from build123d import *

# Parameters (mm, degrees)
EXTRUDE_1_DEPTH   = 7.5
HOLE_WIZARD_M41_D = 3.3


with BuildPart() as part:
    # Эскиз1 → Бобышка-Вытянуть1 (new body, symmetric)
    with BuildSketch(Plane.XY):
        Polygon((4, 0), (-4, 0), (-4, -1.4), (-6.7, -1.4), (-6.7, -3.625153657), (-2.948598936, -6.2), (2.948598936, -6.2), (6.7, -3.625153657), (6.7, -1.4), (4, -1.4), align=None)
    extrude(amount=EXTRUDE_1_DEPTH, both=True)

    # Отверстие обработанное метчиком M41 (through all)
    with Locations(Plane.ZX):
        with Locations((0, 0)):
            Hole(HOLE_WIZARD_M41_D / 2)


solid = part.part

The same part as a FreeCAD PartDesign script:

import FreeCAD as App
import Part
import Sketcher


def add_polygon(sketch, points):
    """Adds a closed chain of lines whose ends are joined by coincident constraints."""
    first, n = sketch.GeometryCount, len(points)
    for a, b in zip(points, points[1:] + points[:1]):
        sketch.addGeometry(Part.LineSegment(App.Vector(*a, 0), App.Vector(*b, 0)), False)
    for i in range(n):
        sketch.addConstraint(Sketcher.Constraint("Coincident", first + i, 2, first + (i + 1) % n, 1))

doc = App.newDocument("Part")
body = doc.addObject("PartDesign::Body", "Body")

sketch1 = doc.addObject("Sketcher::SketchObject", "Sketch")
body.addObject(sketch1)
sketch1.AttachmentSupport = (doc.XY_Plane, [""])
sketch1.MapMode = "FlatFace"
add_polygon(sketch1, [(4, 0), (-4, 0), (-4, -1.4), (-6.7, -1.4), (-6.7, -3.6), (-2.9, -6.2), (2.9, -6.2), (6.7, -3.6), (6.7, -1.4), (4, -1.4)])
sketch1.addConstraint(Sketcher.Constraint("Horizontal", 0))
sketch1.addConstraint(Sketcher.Constraint("Vertical", 1))
sketch1.addConstraint(Sketcher.Constraint("Horizontal", 2))
sketch1.addConstraint(Sketcher.Constraint("Vertical", 3))
sketch1.addConstraint(Sketcher.Constraint("Horizontal", 5))
sketch1.addConstraint(Sketcher.Constraint("Vertical", 7))
sketch1.addConstraint(Sketcher.Constraint("Horizontal", 8))
sketch1.addConstraint(Sketcher.Constraint("Vertical", 9))
sketch1.addConstraint(Sketcher.Constraint("Symmetric", 0, 2, 9, 2, -1, 1))
sketch1.addConstraint(Sketcher.Constraint("Symmetric", 3, 2, 6, 2, -2))
sketch1.addConstraint(Sketcher.Constraint("Horizontal", 2, 2, 7, 2))
sketch1.addConstraint(Sketcher.Constraint("Equal", 4, 6))
sketch1.addConstraint(Sketcher.Constraint("DistanceX", 0, 2, 0, 1, 8.0))
sketch1.addConstraint(Sketcher.Constraint("DistanceX", 2, 2, 2, 1, 2.7))
sketch1.addConstraint(Sketcher.Constraint("DistanceY", 1, 2, 1, 1, 1.4))
sketch1.addConstraint(Sketcher.Constraint("DistanceY", 4, 2, -1, 1, 6.2))
sketch1.addConstraint(Sketcher.Constraint("DistanceX", 4, 2, -1, 1, 2.948599))
sketch1.addConstraint(Sketcher.Constraint("DistanceY", 3, 2, 3, 1, 2.225154))
pad1 = doc.addObject("PartDesign::Pad", "Pad")
body.addObject(pad1)
pad1.Profile = sketch1
pad1.Length = 15
pad1.Midplane = True

sketch2 = doc.addObject("Sketcher::SketchObject", "Sketch001")
body.addObject(sketch2)
sketch2.AttachmentSupport = (doc.XZ_Plane, [""])
sketch2.MapMode = "FlatFace"
sketch2.addGeometry(Part.Circle(App.Vector(0, 0, 0), App.Vector(0, 0, 1), 1.6), False)
sketch2.addConstraint(Sketcher.Constraint("Coincident", 0, 3, -1, 1))
sketch2.addConstraint(Sketcher.Constraint("Diameter", 0, 3.3))
doc.recompute()
hole = doc.addObject("PartDesign::Hole", "Hole")
body.addObject(hole)
hole.Profile = sketch2
hole.ThreadType = "None"
hole.Diameter = 3.3
hole.DepthType = "ThroughAll"
hole.Reversed = True

doc.recompute()
